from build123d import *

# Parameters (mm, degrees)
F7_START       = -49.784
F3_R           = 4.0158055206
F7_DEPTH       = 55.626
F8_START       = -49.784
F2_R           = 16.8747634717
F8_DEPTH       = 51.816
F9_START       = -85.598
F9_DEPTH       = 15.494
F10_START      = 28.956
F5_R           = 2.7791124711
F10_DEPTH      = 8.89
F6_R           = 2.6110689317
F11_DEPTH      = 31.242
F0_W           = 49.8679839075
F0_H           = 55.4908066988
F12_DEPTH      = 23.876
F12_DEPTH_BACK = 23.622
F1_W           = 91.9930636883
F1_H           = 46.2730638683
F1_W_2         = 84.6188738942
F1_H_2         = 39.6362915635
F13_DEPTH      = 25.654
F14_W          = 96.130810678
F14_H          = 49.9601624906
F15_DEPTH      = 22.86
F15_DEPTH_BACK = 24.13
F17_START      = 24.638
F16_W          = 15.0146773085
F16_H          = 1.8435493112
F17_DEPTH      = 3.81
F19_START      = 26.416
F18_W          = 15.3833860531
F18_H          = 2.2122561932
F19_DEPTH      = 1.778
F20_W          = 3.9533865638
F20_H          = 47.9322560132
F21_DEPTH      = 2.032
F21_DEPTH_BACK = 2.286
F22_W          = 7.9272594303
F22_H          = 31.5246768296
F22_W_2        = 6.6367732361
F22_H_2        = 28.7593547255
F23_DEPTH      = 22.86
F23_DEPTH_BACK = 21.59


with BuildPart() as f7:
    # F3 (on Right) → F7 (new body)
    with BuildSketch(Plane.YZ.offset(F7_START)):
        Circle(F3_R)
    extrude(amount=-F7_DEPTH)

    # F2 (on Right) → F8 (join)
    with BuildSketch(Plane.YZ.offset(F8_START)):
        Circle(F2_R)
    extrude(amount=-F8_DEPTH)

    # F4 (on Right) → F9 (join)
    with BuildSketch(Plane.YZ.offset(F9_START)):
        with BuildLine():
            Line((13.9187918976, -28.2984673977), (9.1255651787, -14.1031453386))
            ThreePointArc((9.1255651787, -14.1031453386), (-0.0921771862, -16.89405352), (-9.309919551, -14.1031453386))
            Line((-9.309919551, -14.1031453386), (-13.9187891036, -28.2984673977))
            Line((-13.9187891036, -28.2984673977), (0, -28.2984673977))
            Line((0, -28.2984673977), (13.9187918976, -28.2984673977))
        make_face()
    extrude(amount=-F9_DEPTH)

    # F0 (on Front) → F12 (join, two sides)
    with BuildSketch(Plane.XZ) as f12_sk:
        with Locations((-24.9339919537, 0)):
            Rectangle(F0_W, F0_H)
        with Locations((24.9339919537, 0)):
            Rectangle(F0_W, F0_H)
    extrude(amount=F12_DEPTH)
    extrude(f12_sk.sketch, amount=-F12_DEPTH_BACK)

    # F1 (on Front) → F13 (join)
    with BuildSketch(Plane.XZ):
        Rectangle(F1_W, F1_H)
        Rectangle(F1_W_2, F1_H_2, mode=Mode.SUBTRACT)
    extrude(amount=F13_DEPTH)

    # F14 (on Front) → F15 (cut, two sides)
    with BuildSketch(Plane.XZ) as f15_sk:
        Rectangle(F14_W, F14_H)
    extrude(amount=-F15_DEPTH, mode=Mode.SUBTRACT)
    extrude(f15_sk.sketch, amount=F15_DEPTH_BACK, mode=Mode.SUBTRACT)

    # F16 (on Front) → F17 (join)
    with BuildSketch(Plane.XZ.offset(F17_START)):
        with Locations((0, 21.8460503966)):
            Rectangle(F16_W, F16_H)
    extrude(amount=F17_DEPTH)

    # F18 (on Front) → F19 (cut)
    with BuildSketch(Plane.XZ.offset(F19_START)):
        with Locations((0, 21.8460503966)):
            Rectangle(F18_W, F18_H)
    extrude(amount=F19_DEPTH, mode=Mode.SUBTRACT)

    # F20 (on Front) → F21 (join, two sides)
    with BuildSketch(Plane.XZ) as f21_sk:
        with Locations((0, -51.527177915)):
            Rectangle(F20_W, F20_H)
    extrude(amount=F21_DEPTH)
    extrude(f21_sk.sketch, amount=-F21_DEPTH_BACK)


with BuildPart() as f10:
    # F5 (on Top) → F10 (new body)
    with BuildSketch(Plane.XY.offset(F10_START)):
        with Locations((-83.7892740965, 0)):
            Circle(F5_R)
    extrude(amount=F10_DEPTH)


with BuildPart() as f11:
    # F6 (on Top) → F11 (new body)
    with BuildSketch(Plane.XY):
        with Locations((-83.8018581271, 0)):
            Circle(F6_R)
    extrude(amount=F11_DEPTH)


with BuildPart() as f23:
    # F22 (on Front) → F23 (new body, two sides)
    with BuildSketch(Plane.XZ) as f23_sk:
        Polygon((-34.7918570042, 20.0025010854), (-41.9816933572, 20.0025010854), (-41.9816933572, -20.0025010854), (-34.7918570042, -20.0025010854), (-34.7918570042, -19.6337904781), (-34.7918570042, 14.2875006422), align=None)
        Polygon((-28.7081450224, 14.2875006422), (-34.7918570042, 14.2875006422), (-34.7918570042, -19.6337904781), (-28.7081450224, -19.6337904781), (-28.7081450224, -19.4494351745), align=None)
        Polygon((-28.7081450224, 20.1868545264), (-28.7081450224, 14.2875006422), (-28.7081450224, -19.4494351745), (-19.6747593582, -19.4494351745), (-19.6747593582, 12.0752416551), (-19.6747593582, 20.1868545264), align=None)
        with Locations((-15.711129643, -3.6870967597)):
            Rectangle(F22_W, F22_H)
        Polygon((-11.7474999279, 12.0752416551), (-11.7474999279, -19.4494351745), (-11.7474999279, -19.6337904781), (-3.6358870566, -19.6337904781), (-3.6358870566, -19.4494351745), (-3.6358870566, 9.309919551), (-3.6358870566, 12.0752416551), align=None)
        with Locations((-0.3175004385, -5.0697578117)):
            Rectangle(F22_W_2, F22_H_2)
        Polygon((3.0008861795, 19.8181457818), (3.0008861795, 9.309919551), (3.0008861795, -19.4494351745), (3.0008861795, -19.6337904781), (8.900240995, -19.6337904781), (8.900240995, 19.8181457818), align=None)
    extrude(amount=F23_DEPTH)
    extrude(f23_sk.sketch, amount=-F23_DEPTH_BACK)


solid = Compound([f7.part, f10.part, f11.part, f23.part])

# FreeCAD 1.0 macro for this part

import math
import FreeCAD as App
import Part
import Sketcher
Q = App.Units.Quantity

doc = App.newDocument("Part")
body = doc.addObject("PartDesign::Body", "Body")
body.AllowCompound = True

sketch1 = body.newObject("Sketcher::SketchObject", "Sketch")
sketch1.AttachmentSupport = (doc.getObject("YZ_Plane"), [""])
sketch1.MapMode = "FlatFace"
sketch1.AttachmentOffset = App.Placement(App.Vector(0, 0, -1.96 * 25.4), App.Rotation())
sketch1.addGeometry(Part.Circle(App.Vector(0, 0, 0), App.Vector(0, 0, 1), 4), False)
sketch1.addConstraint([
    Sketcher.Constraint("Coincident", 0, 3, -1, 1),
    Sketcher.Constraint("Diameter", 0, 8.031611),
])
pad1 = body.newObject("PartDesign::Pad", "Pad")
pad1.Profile = sketch1
pad1.Length = Q("2.19 in")
pad1.Reversed = True

sketch2 = body.newObject("Sketcher::SketchObject", "Sketch001")
sketch2.AttachmentSupport = (doc.getObject("YZ_Plane"), [""])
sketch2.MapMode = "FlatFace"
sketch2.AttachmentOffset = App.Placement(App.Vector(0, 0, -1.96 * 25.4), App.Rotation())
sketch2.addGeometry(Part.Circle(App.Vector(0, 0, 0), App.Vector(0, 0, 1), 17), False)
sketch2.addConstraint([
    Sketcher.Constraint("Coincident", 0, 3, -1, 1),
    Sketcher.Constraint("Diameter", 0, 33.749527),
])
pad2 = body.newObject("PartDesign::Pad", "Pad001")
pad2.Profile = sketch2
pad2.Length = Q("2.04 in")
pad2.Reversed = True

sketch3 = body.newObject("Sketcher::SketchObject", "Sketch002")
sketch3.AttachmentSupport = (doc.getObject("YZ_Plane"), [""])
sketch3.MapMode = "FlatFace"
sketch3.AttachmentOffset = App.Placement(App.Vector(0, 0, -3.37 * 25.4), App.Rotation())
sketch3.addGeometry([
    Part.LineSegment(App.Vector(14, -28, 0), App.Vector(9, -14, 0)),
    Part.ArcOfCircle(Part.Circle(App.Vector(0, 0, 0), App.Vector(0, 0, 1), 17), math.radians(-124), math.radians(-56)),
    Part.LineSegment(App.Vector(-9, -14, 0), App.Vector(-14, -28, 0)),
    Part.LineSegment(App.Vector(-14, -28, 0), App.Vector(14, -28, 0)),
], False)
sketch3.addConstraint([
    Sketcher.Constraint("Coincident", 0, 2, 1, 2),
    Sketcher.Constraint("Coincident", 1, 1, 2, 1),
    Sketcher.Constraint("Coincident", 2, 2, 3, 1),
    Sketcher.Constraint("Coincident", 3, 2, 0, 1),
    Sketcher.Constraint("Horizontal", 3),
    Sketcher.Constraint("Horizontal", 0, 2, 1, 1),
    Sketcher.Constraint("Radius", 1, 16.61752),
    Sketcher.Constraint("DistanceX", 3, 1, 3, 2, 27.837581),
    Sketcher.Constraint("Distance", 0, 14.98273),
    Sketcher.Constraint("DistanceX", 1, 1, -1, 1, 9.30992),
    Sketcher.Constraint("DistanceX", 2, 2, -1, 1, 13.918789),
    Sketcher.Constraint("DistanceY", 0, 2, 1, 3, 13.826611),
    Sketcher.Constraint("DistanceY", 1, 3, -1, 1, 0.276534),
])
pad3 = body.newObject("PartDesign::Pad", "Pad002")
pad3.Profile = sketch3
pad3.Length = Q("0.61 in")
pad3.Reversed = True

sketch4 = body.newObject("Sketcher::SketchObject", "Sketch003")
sketch4.AttachmentSupport = (doc.getObject("XZ_Plane"), [""])
sketch4.MapMode = "FlatFace"
sketch4.addGeometry([
    Part.LineSegment(App.Vector(-50, 28, 0), App.Vector(-50, -28, 0)),
    Part.LineSegment(App.Vector(-50, -28, 0), App.Vector(50, -28, 0)),
    Part.LineSegment(App.Vector(50, -28, 0), App.Vector(50, 28, 0)),
    Part.LineSegment(App.Vector(50, 28, 0), App.Vector(-50, 28, 0)),
], False)
sketch4.addConstraint([
    Sketcher.Constraint("Coincident", 0, 2, 1, 1),
    Sketcher.Constraint("Coincident", 1, 2, 2, 1),
    Sketcher.Constraint("Coincident", 2, 2, 3, 1),
    Sketcher.Constraint("Coincident", 3, 2, 0, 1),
    Sketcher.Constraint("Vertical", 0),
    Sketcher.Constraint("Horizontal", 1),
    Sketcher.Constraint("Vertical", 2),
    Sketcher.Constraint("Horizontal", 3),
    Sketcher.Constraint("Symmetric", 0, 2, 2, 2, -1, 1),
    Sketcher.Constraint("DistanceX", 1, 1, 1, 2, 99.735968),
    Sketcher.Constraint("DistanceY", 0, 2, 0, 1, 55.490807),
])
pad4 = body.newObject("PartDesign::Pad", "Pad003")
pad4.Profile = sketch4
pad4.Type = "TwoLengths"
pad4.Length = Q("0.94 in")
pad4.Length2 = Q("0.93 in")

sketch5 = body.newObject("Sketcher::SketchObject", "Sketch004")
sketch5.AttachmentSupport = (doc.getObject("XZ_Plane"), [""])
sketch5.MapMode = "FlatFace"
sketch5.addGeometry([
    Part.LineSegment(App.Vector(-46, 23, 0), App.Vector(-46, -23, 0)),
    Part.LineSegment(App.Vector(-46, -23, 0), App.Vector(46, -23, 0)),
    Part.LineSegment(App.Vector(46, -23, 0), App.Vector(46, 23, 0)),
    Part.LineSegment(App.Vector(46, 23, 0), App.Vector(-46, 23, 0)),
    Part.LineSegment(App.Vector(42, -20, 0), App.Vector(-42, -20, 0)),
    Part.LineSegment(App.Vector(-42, -20, 0), App.Vector(-42, 20, 0)),
    Part.LineSegment(App.Vector(-42, 20, 0), App.Vector(42, 20, 0)),
    Part.LineSegment(App.Vector(42, 20, 0), App.Vector(42, -20, 0)),
], False)
sketch5.addConstraint([
    Sketcher.Constraint("Coincident", 0, 2, 1, 1),
    Sketcher.Constraint("Coincident", 1, 2, 2, 1),
    Sketcher.Constraint("Coincident", 2, 2, 3, 1),
    Sketcher.Constraint("Coincident", 3, 2, 0, 1),
    Sketcher.Constraint("Coincident", 4, 2, 5, 1),
    Sketcher.Constraint("Coincident", 5, 2, 6, 1),
    Sketcher.Constraint("Coincident", 6, 2, 7, 1),
    Sketcher.Constraint("Coincident", 7, 2, 4, 1),
    Sketcher.Constraint("Vertical", 0),
    Sketcher.Constraint("Horizontal", 1),
    Sketcher.Constraint("Vertical", 2),
    Sketcher.Constraint("Horizontal", 3),
    Sketcher.Constraint("Horizontal", 4),
    Sketcher.Constraint("Vertical", 5),
    Sketcher.Constraint("Horizontal", 6),
    Sketcher.Constraint("Vertical", 7),
    Sketcher.Constraint("Symmetric", 0, 2, 2, 2, -1, 1),
    Sketcher.Constraint("Symmetric", 4, 2, 6, 2, -1, 1),
    Sketcher.Constraint("DistanceY", 5, 1, 5, 2, 39.636292),
    Sketcher.Constraint("DistanceX", 1, 1, 1, 2, 91.993064),
    Sketcher.Constraint("DistanceX", 4, 2, 4, 1, 84.618874),
    Sketcher.Constraint("DistanceY", 0, 2, 0, 1, 46.273064),
])
pad5 = body.newObject("PartDesign::Pad", "Pad004")
pad5.Profile = sketch5
pad5.Length = Q("1.01 in")

sketch6 = body.newObject("Sketcher::SketchObject", "Sketch005")
sketch6.AttachmentSupport = (doc.getObject("XZ_Plane"), [""])
sketch6.MapMode = "FlatFace"
sketch6.addGeometry([
    Part.LineSegment(App.Vector(-48, 25, 0), App.Vector(-48, -25, 0)),
    Part.LineSegment(App.Vector(-48, -25, 0), App.Vector(48, -25, 0)),
    Part.LineSegment(App.Vector(48, -25, 0), App.Vector(48, 25, 0)),
    Part.LineSegment(App.Vector(48, 25, 0), App.Vector(-48, 25, 0)),
], False)
sketch6.addConstraint([
    Sketcher.Constraint("Coincident", 0, 2, 1, 1),
    Sketcher.Constraint("Coincident", 1, 2, 2, 1),
    Sketcher.Constraint("Coincident", 2, 2, 3, 1),
    Sketcher.Constraint("Coincident", 3, 2, 0, 1),
    Sketcher.Constraint("Vertical", 0),
    Sketcher.Constraint("Horizontal", 1),
    Sketcher.Constraint("Vertical", 2),
    Sketcher.Constraint("Horizontal", 3),
    Sketcher.Constraint("Symmetric", 0, 2, 2, 2, -1, 1),
    Sketcher.Constraint("DistanceX", 1, 1, 1, 2, 96.130811),
    Sketcher.Constraint("DistanceY", 0, 2, 0, 1, 49.960162),
])
pocket1 = body.newObject("PartDesign::Pocket", "Pocket")
pocket1.Profile = sketch6
pocket1.Type = "TwoLengths"
pocket1.Length = Q("0.9 in")
pocket1.Length2 = Q("0.95 in")

sketch7 = body.newObject("Sketcher::SketchObject", "Sketch006")
sketch7.AttachmentSupport = (doc.getObject("XZ_Plane"), [""])
sketch7.MapMode = "FlatFace"
sketch7.AttachmentOffset = App.Placement(App.Vector(0, 0, 0.97 * 25.4), App.Rotation())
sketch7.addGeometry([
    Part.LineSegment(App.Vector(-7.5, 22.8, 0), App.Vector(-7.5, 20.9, 0)),
    Part.LineSegment(App.Vector(-7.5, 20.9, 0), App.Vector(7.5, 20.9, 0)),
    Part.LineSegment(App.Vector(7.5, 20.9, 0), App.Vector(7.5, 22.8, 0)),
    Part.LineSegment(App.Vector(7.5, 22.8, 0), App.Vector(-7.5, 22.8, 0)),
], False)
sketch7.addConstraint([
    Sketcher.Constraint("Coincident", 0, 2, 1, 1),
    Sketcher.Constraint("Coincident", 1, 2, 2, 1),
    Sketcher.Constraint("Coincident", 2, 2, 3, 1),
    Sketcher.Constraint("Coincident", 3, 2, 0, 1),
    Sketcher.Constraint("Vertical", 0),
    Sketcher.Constraint("Horizontal", 1),
    Sketcher.Constraint("Vertical", 2),
    Sketcher.Constraint("Horizontal", 3),
    Sketcher.Constraint("DistanceY", 0, 2, 0, 1, 1.843549),
    Sketcher.Constraint("DistanceX", 1, 1, 1, 2, 15.014677),
    Sketcher.Constraint("DistanceX", 0, 2, -1, 1, 7.507339),
    Sketcher.Constraint("DistanceY", -1, 1, 0, 2, 20.924276),
])
pad6 = body.newObject("PartDesign::Pad", "Pad005")
pad6.Profile = sketch7
pad6.Length = Q("0.15 in")

sketch8 = body.newObject("Sketcher::SketchObject", "Sketch007")
sketch8.AttachmentSupport = (doc.getObject("XZ_Plane"), [""])
sketch8.MapMode = "FlatFace"
sketch8.AttachmentOffset = App.Placement(App.Vector(0, 0, 1.04 * 25.4), App.Rotation())
sketch8.addGeometry([
    Part.LineSegment(App.Vector(-7.7, 23, 0), App.Vector(-7.7, 20.7, 0)),
    Part.LineSegment(App.Vector(-7.7, 20.7, 0), App.Vector(7.7, 20.7, 0)),
    Part.LineSegment(App.Vector(7.7, 20.7, 0), App.Vector(7.7, 23, 0)),
    Part.LineSegment(App.Vector(7.7, 23, 0), App.Vector(-7.7, 23, 0)),
], False)
sketch8.addConstraint([
    Sketcher.Constraint("Coincident", 0, 2, 1, 1),
    Sketcher.Constraint("Coincident", 1, 2, 2, 1),
    Sketcher.Constraint("Coincident", 2, 2, 3, 1),
    Sketcher.Constraint("Coincident", 3, 2, 0, 1),
    Sketcher.Constraint("Vertical", 0),
    Sketcher.Constraint("Horizontal", 1),
    Sketcher.Constraint("Vertical", 2),
    Sketcher.Constraint("Horizontal", 3),
    Sketcher.Constraint("DistanceX", 1, 1, 1, 2, 15.383386),
    Sketcher.Constraint("DistanceY", 0, 2, 0, 1, 2.212256),
    Sketcher.Constraint("DistanceY", -1, 1, 2, 2, 22.952178),
    Sketcher.Constraint("DistanceX", 0, 2, -1, 1, 7.691693),
])
pocket2 = body.newObject("PartDesign::Pocket", "Pocket001")
pocket2.Profile = sketch8
pocket2.Length = Q("0.07 in")
pocket2.Reversed = True

sketch9 = body.newObject("Sketcher::SketchObject", "Sketch008")
sketch9.AttachmentSupport = (doc.getObject("XZ_Plane"), [""])
sketch9.MapMode = "FlatFace"
sketch9.addGeometry([
    Part.LineSegment(App.Vector(-2, -27.6, 0), App.Vector(-2, -75.5, 0)),
    Part.LineSegment(App.Vector(-2, -75.5, 0), App.Vector(2, -75.5, 0)),
    Part.LineSegment(App.Vector(2, -75.5, 0), App.Vector(2, -27.6, 0)),
    Part.LineSegment(App.Vector(2, -27.6, 0), App.Vector(-2, -27.6, 0)),
], False)
sketch9.addConstraint([
    Sketcher.Constraint("Coincident", 0, 2, 1, 1),
    Sketcher.Constraint("Coincident", 1, 2, 2, 1),
    Sketcher.Constraint("Coincident", 2, 2, 3, 1),
    Sketcher.Constraint("Coincident", 3, 2, 0, 1),
    Sketcher.Constraint("Vertical", 0),
    Sketcher.Constraint("Horizontal", 1),
    Sketcher.Constraint("Vertical", 2),
    Sketcher.Constraint("Horizontal", 3),
    Sketcher.Constraint("DistanceX", 1, 1, 1, 2, 3.953387),
    Sketcher.Constraint("DistanceY", 0, 2, 0, 1, 47.932256),
    Sketcher.Constraint("DistanceY", 2, 2, -1, 1, 27.56105),
    Sketcher.Constraint("DistanceX", 0, 2, -1, 1, 1.976693),
])
pad7 = body.newObject("PartDesign::Pad", "Pad006")
pad7.Profile = sketch9
pad7.Type = "TwoLengths"
pad7.Length = Q("0.08 in")
pad7.Length2 = Q("0.09 in")
body2 = doc.addObject("PartDesign::Body", "Body001")

sketch10 = body2.newObject("Sketcher::SketchObject", "Sketch009")
sketch10.AttachmentSupport = (doc.getObject("XY_Plane001"), [""])
sketch10.MapMode = "FlatFace"
sketch10.AttachmentOffset = App.Placement(App.Vector(0, 0, 1.14 * 25.4), App.Rotation())
sketch10.addGeometry(Part.Circle(App.Vector(-83.8, 0, 0), App.Vector(0, 0, 1), 2.8), False)
sketch10.addConstraint([
    Sketcher.Constraint("PointOnObject", 0, 3, -1),
    Sketcher.Constraint("Diameter", 0, 5.558225),
    Sketcher.Constraint("DistanceX", 0, 3, -1, 1, 83.789274),
])
pad8 = body2.newObject("PartDesign::Pad", "Pad007")
pad8.Profile = sketch10
pad8.Length = Q("0.35 in")
body3 = doc.addObject("PartDesign::Body", "Body002")

sketch11 = body3.newObject("Sketcher::SketchObject", "Sketch010")
sketch11.AttachmentSupport = (doc.getObject("XY_Plane002"), [""])
sketch11.MapMode = "FlatFace"
sketch11.addGeometry(Part.Circle(App.Vector(-83.8, 0, 0), App.Vector(0, 0, 1), 2.6), False)
sketch11.addConstraint([
    Sketcher.Constraint("PointOnObject", 0, 3, -1),
    Sketcher.Constraint("Diameter", 0, 5.222138),
    Sketcher.Constraint("DistanceX", 0, 3, -1, 1, 83.801858),
])
pad9 = body3.newObject("PartDesign::Pad", "Pad008")
pad9.Profile = sketch11
pad9.Length = Q("1.23 in")
body4 = doc.addObject("PartDesign::Body", "Body003")

sketch12 = body4.newObject("Sketcher::SketchObject", "Sketch011")
sketch12.AttachmentSupport = (doc.getObject("XZ_Plane003"), [""])
sketch12.MapMode = "FlatFace"
sketch12.addGeometry([
    Part.LineSegment(App.Vector(-34.79, 20, 0), App.Vector(-41.98, 20, 0)),
    Part.LineSegment(App.Vector(-41.98, 20, 0), App.Vector(-41.98, -20, 0)),
    Part.LineSegment(App.Vector(-41.98, -20, 0), App.Vector(-34.79, -20, 0)),
    Part.LineSegment(App.Vector(-34.79, -20, 0), App.Vector(-34.79, -19.63, 0)),
    Part.LineSegment(App.Vector(-34.79, -19.63, 0), App.Vector(-28.71, -19.63, 0)),
    Part.LineSegment(App.Vector(-28.71, -19.63, 0), App.Vector(-28.71, -19.45, 0)),
    Part.LineSegment(App.Vector(-28.71, -19.45, 0), App.Vector(-11.75, -19.45, 0)),
    Part.LineSegment(App.Vector(-11.75, -19.45, 0), App.Vector(-11.75, -19.63, 0)),
    Part.LineSegment(App.Vector(-11.75, -19.63, 0), App.Vector(-3.64, -19.63, 0)),
    Part.LineSegment(App.Vector(-3.64, -19.63, 0), App.Vector(-3.64, -19.45, 0)),
    Part.LineSegment(App.Vector(-3.64, -19.45, 0), App.Vector(3, -19.45, 0)),
    Part.LineSegment(App.Vector(3, -19.45, 0), App.Vector(3, -19.63, 0)),
    Part.LineSegment(App.Vector(3, -19.63, 0), App.Vector(8.9, -19.63, 0)),
    Part.LineSegment(App.Vector(8.9, -19.63, 0), App.Vector(8.9, 19.82, 0)),
    Part.LineSegment(App.Vector(8.9, 19.82, 0), App.Vector(3, 19.82, 0)),
    Part.LineSegment(App.Vector(3, 19.82, 0), App.Vector(3, 9.31, 0)),
    Part.LineSegment(App.Vector(3, 9.31, 0), App.Vector(-3.64, 9.31, 0)),
    Part.LineSegment(App.Vector(-3.64, 9.31, 0), App.Vector(-3.64, 12.08, 0)),
    Part.LineSegment(App.Vector(-3.64, 12.08, 0), App.Vector(-19.67, 12.08, 0)),
    Part.LineSegment(App.Vector(-19.67, 12.08, 0), App.Vector(-19.67, 20.19, 0)),
    Part.LineSegment(App.Vector(-19.67, 20.19, 0), App.Vector(-28.71, 20.19, 0)),
    Part.LineSegment(App.Vector(-28.71, 20.19, 0), App.Vector(-28.71, 14.29, 0)),
    Part.LineSegment(App.Vector(-28.71, 14.29, 0), App.Vector(-34.79, 14.29, 0)),
    Part.LineSegment(App.Vector(-34.79, 14.29, 0), App.Vector(-34.79, 20, 0)),
], False)
sketch12.addConstraint([
    Sketcher.Constraint("Coincident", 0, 2, 1, 1),
    Sketcher.Constraint("Coincident", 1, 2, 2, 1),
    Sketcher.Constraint("Coincident", 2, 2, 3, 1),
    Sketcher.Constraint("Coincident", 3, 2, 4, 1),
    Sketcher.Constraint("Coincident", 4, 2, 5, 1),
    Sketcher.Constraint("Coincident", 5, 2, 6, 1),
    Sketcher.Constraint("Coincident", 6, 2, 7, 1),
    Sketcher.Constraint("Coincident", 7, 2, 8, 1),
    Sketcher.Constraint("Coincident", 8, 2, 9, 1),
    Sketcher.Constraint("Coincident", 9, 2, 10, 1),
    Sketcher.Constraint("Coincident", 10, 2, 11, 1),
    Sketcher.Constraint("Coincident", 11, 2, 12, 1),
    Sketcher.Constraint("Coincident", 12, 2, 13, 1),
    Sketcher.Constraint("Coincident", 13, 2, 14, 1),
    Sketcher.Constraint("Coincident", 14, 2, 15, 1),
    Sketcher.Constraint("Coincident", 15, 2, 16, 1),
    Sketcher.Constraint("Coincident", 16, 2, 17, 1),
    Sketcher.Constraint("Coincident", 17, 2, 18, 1),
    Sketcher.Constraint("Coincident", 18, 2, 19, 1),
    Sketcher.Constraint("Coincident", 19, 2, 20, 1),
    Sketcher.Constraint("Coincident", 20, 2, 21, 1),
    Sketcher.Constraint("Coincident", 21, 2, 22, 1),
    Sketcher.Constraint("Coincident", 22, 2, 23, 1),
    Sketcher.Constraint("Coincident", 23, 2, 0, 1),
    Sketcher.Constraint("Horizontal", 0),
    Sketcher.Constraint("Vertical", 1),
    Sketcher.Constraint("Horizontal", 2),
    Sketcher.Constraint("Vertical", 3),
    Sketcher.Constraint("Horizontal", 4),
    Sketcher.Constraint("Vertical", 5),
    Sketcher.Constraint("Horizontal", 6),
    Sketcher.Constraint("Vertical", 7),
    Sketcher.Constraint("Horizontal", 8),
    Sketcher.Constraint("Vertical", 9),
    Sketcher.Constraint("Horizontal", 10),
    Sketcher.Constraint("Vertical", 11),
    Sketcher.Constraint("Horizontal", 12),
    Sketcher.Constraint("Vertical", 13),
    Sketcher.Constraint("Horizontal", 14),
    Sketcher.Constraint("Vertical", 15),
    Sketcher.Constraint("Horizontal", 16),
    Sketcher.Constraint("Vertical", 17),
    Sketcher.Constraint("Horizontal", 18),
    Sketcher.Constraint("Vertical", 19),
    Sketcher.Constraint("Horizontal", 20),
    Sketcher.Constraint("Vertical", 21),
    Sketcher.Constraint("Horizontal", 22),
    Sketcher.Constraint("Vertical", 23),
    Sketcher.Constraint("Symmetric", 2, 2, 23, 2, -1),
    Sketcher.Constraint("Horizontal", 4, 2, 7, 2),
    Sketcher.Constraint("Horizontal", 6, 2, 9, 2),
    Sketcher.Constraint("Horizontal", 8, 2, 11, 2),
    Sketcher.Constraint("Vertical", 11, 2, 14, 2),
    Sketcher.Constraint("Vertical", 9, 2, 16, 2),
    Sketcher.Constraint("Vertical", 5, 2, 20, 2),
    Sketcher.Constraint("Equal", 8, 19),
    Sketcher.Constraint("Equal", 14, 21),
    Sketcher.Constraint("DistanceY", 1, 2, 1, 1, Q("1.5750001 in")),
    Sketcher.Constraint("DistanceY", 23, 1, 23, 2, Q("0.225 in")),
    Sketcher.Constraint("DistanceX", 6, 2, -1, 1, Q("0.4625 in")),
    Sketcher.Constraint("DistanceX", 4, 1, 4, 2, 6.083712),
    Sketcher.Constraint("DistanceY", 3, 1, 3, 2, 0.368711),
    Sketcher.Constraint("DistanceX", 0, 2, 0, 1, 7.189836),
    Sketcher.Constraint("DistanceX", 6, 1, 6, 2, 16.960645),
    Sketcher.Constraint("DistanceX", 8, 1, 8, 2, 8.111613),
    Sketcher.Constraint("DistanceX", 10, 1, 10, 2, 6.636773),
    Sketcher.Constraint("DistanceX", 12, 1, 12, 2, 5.899355),
    Sketcher.Constraint("DistanceX", 18, 2, 18, 1, 16.038872),
    Sketcher.Constraint("DistanceY", 5, 1, 5, 2, 0.184355),
    Sketcher.Constraint("DistanceY", 13, 1, 13, 2, 39.451936),
    Sketcher.Constraint("DistanceY", 15, 2, 15, 1, 10.508226),
])
pad10 = body4.newObject("PartDesign::Pad", "Pad009")
pad10.Profile = sketch12
pad10.Type = "TwoLengths"
pad10.Length = Q("0.9 in")
pad10.Length2 = Q("0.85 in")

doc.recompute()
